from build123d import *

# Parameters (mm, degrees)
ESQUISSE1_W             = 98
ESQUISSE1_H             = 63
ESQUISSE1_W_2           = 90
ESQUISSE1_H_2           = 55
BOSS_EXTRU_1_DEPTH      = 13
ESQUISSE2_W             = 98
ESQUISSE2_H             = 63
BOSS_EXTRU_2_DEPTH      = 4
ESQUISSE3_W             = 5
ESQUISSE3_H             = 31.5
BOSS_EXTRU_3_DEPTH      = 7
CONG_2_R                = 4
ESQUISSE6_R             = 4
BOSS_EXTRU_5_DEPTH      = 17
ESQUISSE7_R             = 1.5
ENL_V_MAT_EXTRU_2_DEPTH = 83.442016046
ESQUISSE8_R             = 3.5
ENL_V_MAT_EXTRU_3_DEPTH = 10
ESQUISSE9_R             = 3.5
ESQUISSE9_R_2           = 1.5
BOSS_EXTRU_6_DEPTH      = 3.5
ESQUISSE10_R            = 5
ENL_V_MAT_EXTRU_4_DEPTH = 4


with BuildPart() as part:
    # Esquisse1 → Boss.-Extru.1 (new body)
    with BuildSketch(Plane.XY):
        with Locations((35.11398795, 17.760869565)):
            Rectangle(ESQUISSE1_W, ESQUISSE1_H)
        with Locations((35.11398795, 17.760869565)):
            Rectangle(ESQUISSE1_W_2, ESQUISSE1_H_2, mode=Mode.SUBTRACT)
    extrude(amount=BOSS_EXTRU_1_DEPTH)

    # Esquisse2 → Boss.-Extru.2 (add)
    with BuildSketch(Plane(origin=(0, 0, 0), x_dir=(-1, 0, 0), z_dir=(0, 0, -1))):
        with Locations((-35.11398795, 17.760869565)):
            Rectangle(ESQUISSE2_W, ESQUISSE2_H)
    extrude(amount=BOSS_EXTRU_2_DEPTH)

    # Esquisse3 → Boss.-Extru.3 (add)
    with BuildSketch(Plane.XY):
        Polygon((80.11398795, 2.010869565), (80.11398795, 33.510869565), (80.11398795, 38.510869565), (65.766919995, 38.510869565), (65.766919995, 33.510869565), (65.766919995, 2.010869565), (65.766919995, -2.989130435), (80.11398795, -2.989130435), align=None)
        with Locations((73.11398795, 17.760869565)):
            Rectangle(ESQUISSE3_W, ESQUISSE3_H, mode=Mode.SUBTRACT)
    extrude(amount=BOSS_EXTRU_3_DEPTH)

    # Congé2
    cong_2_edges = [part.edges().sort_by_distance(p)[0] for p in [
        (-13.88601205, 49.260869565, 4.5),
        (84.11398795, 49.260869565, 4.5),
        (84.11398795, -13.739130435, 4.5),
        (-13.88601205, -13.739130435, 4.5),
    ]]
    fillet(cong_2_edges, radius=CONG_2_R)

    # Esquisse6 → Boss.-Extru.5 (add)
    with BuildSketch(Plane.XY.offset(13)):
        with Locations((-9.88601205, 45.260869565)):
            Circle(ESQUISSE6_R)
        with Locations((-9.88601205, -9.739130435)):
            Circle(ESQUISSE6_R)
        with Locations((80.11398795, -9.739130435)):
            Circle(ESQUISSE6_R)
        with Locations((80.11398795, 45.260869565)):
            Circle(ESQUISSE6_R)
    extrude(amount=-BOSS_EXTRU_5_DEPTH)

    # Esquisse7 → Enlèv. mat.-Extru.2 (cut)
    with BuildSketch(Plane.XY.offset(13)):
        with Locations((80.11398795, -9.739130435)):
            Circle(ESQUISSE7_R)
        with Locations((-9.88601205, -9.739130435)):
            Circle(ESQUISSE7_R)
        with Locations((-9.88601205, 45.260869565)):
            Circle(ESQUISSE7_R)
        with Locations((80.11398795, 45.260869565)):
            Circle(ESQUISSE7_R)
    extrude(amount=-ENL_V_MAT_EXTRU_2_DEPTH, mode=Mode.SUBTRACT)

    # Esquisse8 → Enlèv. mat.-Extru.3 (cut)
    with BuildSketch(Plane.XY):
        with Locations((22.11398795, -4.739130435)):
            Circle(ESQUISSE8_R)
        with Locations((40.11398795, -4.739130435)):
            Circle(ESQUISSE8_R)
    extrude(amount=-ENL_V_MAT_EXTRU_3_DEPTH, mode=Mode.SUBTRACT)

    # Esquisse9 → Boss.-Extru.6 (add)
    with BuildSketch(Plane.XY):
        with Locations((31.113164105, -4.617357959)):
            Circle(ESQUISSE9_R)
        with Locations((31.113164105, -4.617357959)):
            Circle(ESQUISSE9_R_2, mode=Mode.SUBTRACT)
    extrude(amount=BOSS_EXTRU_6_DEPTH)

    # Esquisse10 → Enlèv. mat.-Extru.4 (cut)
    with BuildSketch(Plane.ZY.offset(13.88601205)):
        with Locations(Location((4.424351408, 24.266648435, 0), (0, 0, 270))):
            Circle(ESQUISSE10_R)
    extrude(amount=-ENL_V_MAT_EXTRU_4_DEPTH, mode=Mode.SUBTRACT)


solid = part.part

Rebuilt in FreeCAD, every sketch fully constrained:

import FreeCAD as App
import Part
import Sketcher
Q = App.Units.Quantity


def edges_at(feature, points):
    """Names of the edges that pass closest to the given points."""
    edges = feature.Shape.Edges
    near = lambda p: min(range(len(edges)), key=lambda i: edges[i].distToShape(Part.Vertex(*p))[0])
    return sorted({f"Edge{near(p) + 1}" for p in points})

doc = App.newDocument("Part")
body = doc.addObject("PartDesign::Body", "Body")

# Sketch on XY plane
sketch1 = body.newObject("Sketcher::SketchObject", "Sketch")
sketch1.AttachmentSupport = (doc.getObject("XY_Plane"), [""])
sketch1.MapMode = "FlatFace"
sketch1.addGeometry([
    Part.LineSegment(App.Vector(-14, 49, 0), App.Vector(-14, -14, 0)),  # 0
    Part.LineSegment(App.Vector(-14, -14, 0), App.Vector(84, -14, 0)),  # 1
    Part.LineSegment(App.Vector(84, -14, 0), App.Vector(84, 49, 0)),  # 2
    Part.LineSegment(App.Vector(84, 49, 0), App.Vector(-14, 49, 0)),  # 3
    Part.LineSegment(App.Vector(80, -10, 0), App.Vector(-10, -10, 0)),  # 4
    Part.LineSegment(App.Vector(-10, -10, 0), App.Vector(-10, 45, 0)),  # 5
    Part.LineSegment(App.Vector(-10, 45, 0), App.Vector(80, 45, 0)),  # 6
    Part.LineSegment(App.Vector(80, 45, 0), App.Vector(80, -10, 0)),  # 7
], False)
sketch1.addConstraint([
    Sketcher.Constraint("Coincident", 0, 2, 1, 1),
    Sketcher.Constraint("Coincident", 1, 2, 2, 1),
    Sketcher.Constraint("Coincident", 2, 2, 3, 1),
    Sketcher.Constraint("Coincident", 3, 2, 0, 1),
    Sketcher.Constraint("Coincident", 4, 2, 5, 1),
    Sketcher.Constraint("Coincident", 5, 2, 6, 1),
    Sketcher.Constraint("Coincident", 6, 2, 7, 1),
    Sketcher.Constraint("Coincident", 7, 2, 4, 1),
    Sketcher.Constraint("Vertical", 0),
    Sketcher.Constraint("Horizontal", 1),
    Sketcher.Constraint("Vertical", 2),
    Sketcher.Constraint("Horizontal", 3),
    Sketcher.Constraint("Horizontal", 4),
    Sketcher.Constraint("Vertical", 5),
    Sketcher.Constraint("Horizontal", 6),
    Sketcher.Constraint("Vertical", 7),
    Sketcher.Constraint("DistanceX", 1, 1, 1, 2, Q("98 mm")),
    Sketcher.Constraint("DistanceX", 4, 2, 4, 1, Q("90 mm")),
    Sketcher.Constraint("DistanceY", 0, 2, 0, 1, Q("63 mm")),
    Sketcher.Constraint("DistanceY", 5, 1, 5, 2, Q("55 mm")),
    Sketcher.Constraint("DistanceX", 0, 2, 4, 2, Q("4 mm")),
    Sketcher.Constraint("DistanceY", 0, 2, 4, 2, Q("4 mm")),
    Sketcher.Constraint("DistanceY", 0, 2, -1, 1, Q("13.73913 mm")),
    Sketcher.Constraint("DistanceX", 0, 2, -1, 1, Q("13.886012 mm")),
])
pad1 = body.newObject("PartDesign::Pad", "Pad")
pad1.Profile = sketch1
pad1.Length = 13

# Sketch on XY plane
sketch2 = body.newObject("Sketcher::SketchObject", "Sketch001")
sketch2.AttachmentSupport = (doc.getObject("XY_Plane"), [""])
sketch2.MapMode = "FlatFace"
sketch2.addGeometry([
    Part.LineSegment(App.Vector(84, 49, 0), App.Vector(84, -14, 0)),
    Part.LineSegment(App.Vector(84, -14, 0), App.Vector(-14, -14, 0)),
    Part.LineSegment(App.Vector(-14, -14, 0), App.Vector(-14, 49, 0)),
    Part.LineSegment(App.Vector(-14, 49, 0), App.Vector(84, 49, 0)),
], False)
sketch2.addConstraint([
    Sketcher.Constraint("Coincident", 0, 2, 1, 1),
    Sketcher.Constraint("Coincident", 1, 2, 2, 1),
    Sketcher.Constraint("Coincident", 2, 2, 3, 1),
    Sketcher.Constraint("Coincident", 3, 2, 0, 1),
    Sketcher.Constraint("Vertical", 0),
    Sketcher.Constraint("Horizontal", 1),
    Sketcher.Constraint("Vertical", 2),
    Sketcher.Constraint("Horizontal", 3),
    Sketcher.Constraint("DistanceX", 1, 2, 1, 1, Q("98 mm")),
    Sketcher.Constraint("DistanceY", 0, 2, 0, 1, Q("63 mm")),
    Sketcher.Constraint("DistanceY", 0, 2, -1, 1, Q("13.73913 mm")),
    Sketcher.Constraint("DistanceX", -1, 1, 0, 2, Q("84.113988 mm")),
])
pad2 = body.newObject("PartDesign::Pad", "Pad001")
pad2.Profile = sketch2
pad2.Length = 4
pad2.Reversed = True

# Sketch on XY plane
sketch3 = body.newObject("Sketcher::SketchObject", "Sketch002")
sketch3.AttachmentSupport = (doc.getObject("XY_Plane"), [""])
sketch3.MapMode = "FlatFace"
sketch3.addGeometry([
    Part.LineSegment(App.Vector(80, 39, 0), App.Vector(66, 39, 0)),  # 0
    Part.LineSegment(App.Vector(66, 39, 0), App.Vector(66, -3, 0)),  # 1
    Part.LineSegment(App.Vector(66, -3, 0), App.Vector(80, -3, 0)),  # 2
    Part.LineSegment(App.Vector(80, -3, 0), App.Vector(80, 39, 0)),  # 3
    Part.LineSegment(App.Vector(76, 2, 0), App.Vector(71, 2, 0)),  # 4
    Part.LineSegment(App.Vector(71, 2, 0), App.Vector(71, 34, 0)),  # 5
    Part.LineSegment(App.Vector(71, 34, 0), App.Vector(76, 34, 0)),  # 6
    Part.LineSegment(App.Vector(76, 34, 0), App.Vector(76, 2, 0)),  # 7
], False)
sketch3.addConstraint([
    Sketcher.Constraint("Coincident", 0, 2, 1, 1),
    Sketcher.Constraint("Coincident", 1, 2, 2, 1),
    Sketcher.Constraint("Coincident", 2, 2, 3, 1),
    Sketcher.Constraint("Coincident", 3, 2, 0, 1),
    Sketcher.Constraint("Coincident", 4, 2, 5, 1),
    Sketcher.Constraint("Coincident", 5, 2, 6, 1),
    Sketcher.Constraint("Coincident", 6, 2, 7, 1),
    Sketcher.Constraint("Coincident", 7, 2, 4, 1),
    Sketcher.Constraint("Horizontal", 0),
    Sketcher.Constraint("Vertical", 1),
    Sketcher.Constraint("Horizontal", 2),
    Sketcher.Constraint("Vertical", 3),
    Sketcher.Constraint("Horizontal", 4),
    Sketcher.Constraint("Vertical", 5),
    Sketcher.Constraint("Horizontal", 6),
    Sketcher.Constraint("Vertical", 7),
    Sketcher.Constraint("DistanceX", 4, 2, 4, 1, Q("5 mm")),
    Sketcher.Constraint("DistanceY", 1, 2, 1, 1, Q("41.5 mm")),
    Sketcher.Constraint("DistanceY", 5, 1, 5, 2, Q("31.5 mm")),
    Sketcher.Constraint("DistanceY", 1, 2, 4, 2, Q("5 mm")),
    Sketcher.Constraint("DistanceX", 4, 2, 2, 2, Q("9.5 mm")),
    Sketcher.Constraint("DistanceX", 0, 2, 0, 1, Q("14.347068 mm")),
    Sketcher.Constraint("DistanceX", -1, 1, 0, 2, Q("65.76692 mm")),
    Sketcher.Constraint("DistanceY", -1, 1, 0, 2, Q("38.51087 mm")),
])
pad3 = body.newObject("PartDesign::Pad", "Pad002")
pad3.Profile = sketch3
pad3.Length = 7
doc.recompute()

fillet = body.newObject("PartDesign::Fillet", "Fillet")
fillet.Base = (pad3, edges_at(pad3, [
    (-13.886, 49.261, 4.5),
    (84.114, 49.261, 4.5),
    (84.114, -13.739, 4.5),
    (-13.886, -13.739, 4.5),
]))
fillet.Radius = 4

# Sketch on XY plane
sketch4 = body.newObject("Sketcher::SketchObject", "Sketch003")
sketch4.AttachmentSupport = (doc.getObject("XY_Plane"), [""])
sketch4.MapMode = "FlatFace"
sketch4.AttachmentOffset = App.Placement(App.Vector(0, 0, 13), App.Rotation())
sketch4.addGeometry([
    Part.Circle(App.Vector(-9.9, 45.3, 0), App.Vector(0, 0, 1), 4),
    Part.Circle(App.Vector(-9.9, -9.7, 0), App.Vector(0, 0, 1), 4),
    Part.Circle(App.Vector(80.1, -9.7, 0), App.Vector(0, 0, 1), 4),
    Part.Circle(App.Vector(80.1, 45.3, 0), App.Vector(0, 0, 1), 4),
], False)
sketch4.addConstraint([
    Sketcher.Constraint("Equal", 0, 1),
    Sketcher.Constraint("Equal", 1, 2),
    Sketcher.Constraint("Equal", 2, 3),
    Sketcher.Constraint("Horizontal", 1, 3, 2, 3),
    Sketcher.Constraint("Horizontal", 0, 3, 3, 3),
    Sketcher.Constraint("Vertical", 0, 3, 1, 3),
    Sketcher.Constraint("Vertical", 2, 3, 3, 3),
    Sketcher.Constraint("Diameter", 0, Q("8 mm")),
    Sketcher.Constraint("DistanceY", 1, 3, 0, 3, Q("55 mm")),
    Sketcher.Constraint("DistanceX", 1, 3, 2, 3, Q("90 mm")),
    Sketcher.Constraint("DistanceY", -1, 1, 0, 3, Q("45.26087 mm")),
    Sketcher.Constraint("DistanceX", 0, 3, -1, 1, Q("9.886012 mm")),
])
pad4 = body.newObject("PartDesign::Pad", "Pad003")
pad4.Profile = sketch4
pad4.Length = 17
pad4.Reversed = True

# Sketch on XY plane
sketch5 = body.newObject("Sketcher::SketchObject", "Sketch004")
sketch5.AttachmentSupport = (doc.getObject("XY_Plane"), [""])
sketch5.MapMode = "FlatFace"
sketch5.AttachmentOffset = App.Placement(App.Vector(0, 0, 13), App.Rotation())
sketch5.addGeometry([
    Part.Circle(App.Vector(80.1, -9.7, 0), App.Vector(0, 0, 1), 1.5),
    Part.Circle(App.Vector(-9.9, -9.7, 0), App.Vector(0, 0, 1), 1.5),
    Part.Circle(App.Vector(-9.9, 45.3, 0), App.Vector(0, 0, 1), 1.5),
    Part.Circle(App.Vector(80.1, 45.3, 0), App.Vector(0, 0, 1), 1.5),
], False)
sketch5.addConstraint([
    Sketcher.Constraint("Equal", 0, 1),
    Sketcher.Constraint("Equal", 1, 2),
    Sketcher.Constraint("Equal", 2, 3),
    Sketcher.Constraint("Horizontal", 0, 3, 1, 3),
    Sketcher.Constraint("Horizontal", 2, 3, 3, 3),
    Sketcher.Constraint("Vertical", 1, 3, 2, 3),
    Sketcher.Constraint("Vertical", 0, 3, 3, 3),
    Sketcher.Constraint("Diameter", 0, Q("3 mm")),
    Sketcher.Constraint("DistanceX", 1, 3, 0, 3, Q("90 mm")),
    Sketcher.Constraint("DistanceY", 1, 3, 2, 3, Q("55 mm")),
    Sketcher.Constraint("DistanceY", 0, 3, -1, 1, Q("9.73913 mm")),
    Sketcher.Constraint("DistanceX", -1, 1, 0, 3, Q("80.113988 mm")),
])
pocket1 = body.newObject("PartDesign::Pocket", "Pocket")
pocket1.Profile = sketch5
pocket1.Length = 83.442016

# Sketch on XY plane
sketch6 = body.newObject("Sketcher::SketchObject", "Sketch005")
sketch6.AttachmentSupport = (doc.getObject("XY_Plane"), [""])
sketch6.MapMode = "FlatFace"
sketch6.addGeometry([
    Part.Circle(App.Vector(22.1, -4.7, 0), App.Vector(0, 0, 1), 3.5),
    Part.Circle(App.Vector(40.1, -4.7, 0), App.Vector(0, 0, 1), 3.5),
], False)
sketch6.addConstraint([
    Sketcher.Constraint("Equal", 0, 1),
    Sketcher.Constraint("Horizontal", 0, 3, 1, 3),
    Sketcher.Constraint("Diameter", 0, Q("7 mm")),
    Sketcher.Constraint("DistanceX", 0, 3, 1, 3, Q("18 mm")),
    Sketcher.Constraint("DistanceY", 0, 3, -1, 1, Q("4.73913 mm")),
    Sketcher.Constraint("DistanceX", -1, 1, 0, 3, Q("22.113988 mm")),
])
pocket2 = body.newObject("PartDesign::Pocket", "Pocket001")
pocket2.Profile = sketch6
pocket2.Length = 10

# Sketch on XY plane
sketch7 = body.newObject("Sketcher::SketchObject", "Sketch006")
sketch7.AttachmentSupport = (doc.getObject("XY_Plane"), [""])
sketch7.MapMode = "FlatFace"
sketch7.addGeometry([
    Part.Circle(App.Vector(31.1, -4.6, 0), App.Vector(0, 0, 1), 3.5),
    Part.Circle(App.Vector(31.1, -4.6, 0), App.Vector(0, 0, 1), 1.5),
], False)
sketch7.addConstraint([
    Sketcher.Constraint("Coincident", 1, 3, 0, 3),
    Sketcher.Constraint("Diameter", 0, Q("7 mm")),
    Sketcher.Constraint("Diameter", 1, Q("3 mm")),
    Sketcher.Constraint("DistanceX", -1, 1, 0, 3, Q("31.113164 mm")),
    Sketcher.Constraint("DistanceY", 0, 3, -1, 1, Q("4.617358 mm")),
])
pad5 = body.newObject("PartDesign::Pad", "Pad004")
pad5.Profile = sketch7
pad5.Length = 3.5

# Sketch on YZ plane
sketch8 = body.newObject("Sketcher::SketchObject", "Sketch007")
sketch8.AttachmentSupport = (doc.getObject("YZ_Plane"), [""])
sketch8.MapMode = "FlatFace"
sketch8.AttachmentOffset = App.Placement(App.Vector(0, 0, -13.886012), App.Rotation())
sketch8.addGeometry(Part.Circle(App.Vector(24, 4, 0), App.Vector(0, 0, 1), 5), False)
sketch8.addConstraint([
    Sketcher.Constraint("Diameter", 0, Q("10 mm")),
    Sketcher.Constraint("DistanceX", -1, 1, 0, 3, Q("24.266648 mm")),
    Sketcher.Constraint("DistanceY", -1, 1, 0, 3, Q("4.424351 mm")),
])
pocket3 = body.newObject("PartDesign::Pocket", "Pocket002")
pocket3.Profile = sketch8
pocket3.Length = 4
pocket3.Reversed = True

doc.recompute()
